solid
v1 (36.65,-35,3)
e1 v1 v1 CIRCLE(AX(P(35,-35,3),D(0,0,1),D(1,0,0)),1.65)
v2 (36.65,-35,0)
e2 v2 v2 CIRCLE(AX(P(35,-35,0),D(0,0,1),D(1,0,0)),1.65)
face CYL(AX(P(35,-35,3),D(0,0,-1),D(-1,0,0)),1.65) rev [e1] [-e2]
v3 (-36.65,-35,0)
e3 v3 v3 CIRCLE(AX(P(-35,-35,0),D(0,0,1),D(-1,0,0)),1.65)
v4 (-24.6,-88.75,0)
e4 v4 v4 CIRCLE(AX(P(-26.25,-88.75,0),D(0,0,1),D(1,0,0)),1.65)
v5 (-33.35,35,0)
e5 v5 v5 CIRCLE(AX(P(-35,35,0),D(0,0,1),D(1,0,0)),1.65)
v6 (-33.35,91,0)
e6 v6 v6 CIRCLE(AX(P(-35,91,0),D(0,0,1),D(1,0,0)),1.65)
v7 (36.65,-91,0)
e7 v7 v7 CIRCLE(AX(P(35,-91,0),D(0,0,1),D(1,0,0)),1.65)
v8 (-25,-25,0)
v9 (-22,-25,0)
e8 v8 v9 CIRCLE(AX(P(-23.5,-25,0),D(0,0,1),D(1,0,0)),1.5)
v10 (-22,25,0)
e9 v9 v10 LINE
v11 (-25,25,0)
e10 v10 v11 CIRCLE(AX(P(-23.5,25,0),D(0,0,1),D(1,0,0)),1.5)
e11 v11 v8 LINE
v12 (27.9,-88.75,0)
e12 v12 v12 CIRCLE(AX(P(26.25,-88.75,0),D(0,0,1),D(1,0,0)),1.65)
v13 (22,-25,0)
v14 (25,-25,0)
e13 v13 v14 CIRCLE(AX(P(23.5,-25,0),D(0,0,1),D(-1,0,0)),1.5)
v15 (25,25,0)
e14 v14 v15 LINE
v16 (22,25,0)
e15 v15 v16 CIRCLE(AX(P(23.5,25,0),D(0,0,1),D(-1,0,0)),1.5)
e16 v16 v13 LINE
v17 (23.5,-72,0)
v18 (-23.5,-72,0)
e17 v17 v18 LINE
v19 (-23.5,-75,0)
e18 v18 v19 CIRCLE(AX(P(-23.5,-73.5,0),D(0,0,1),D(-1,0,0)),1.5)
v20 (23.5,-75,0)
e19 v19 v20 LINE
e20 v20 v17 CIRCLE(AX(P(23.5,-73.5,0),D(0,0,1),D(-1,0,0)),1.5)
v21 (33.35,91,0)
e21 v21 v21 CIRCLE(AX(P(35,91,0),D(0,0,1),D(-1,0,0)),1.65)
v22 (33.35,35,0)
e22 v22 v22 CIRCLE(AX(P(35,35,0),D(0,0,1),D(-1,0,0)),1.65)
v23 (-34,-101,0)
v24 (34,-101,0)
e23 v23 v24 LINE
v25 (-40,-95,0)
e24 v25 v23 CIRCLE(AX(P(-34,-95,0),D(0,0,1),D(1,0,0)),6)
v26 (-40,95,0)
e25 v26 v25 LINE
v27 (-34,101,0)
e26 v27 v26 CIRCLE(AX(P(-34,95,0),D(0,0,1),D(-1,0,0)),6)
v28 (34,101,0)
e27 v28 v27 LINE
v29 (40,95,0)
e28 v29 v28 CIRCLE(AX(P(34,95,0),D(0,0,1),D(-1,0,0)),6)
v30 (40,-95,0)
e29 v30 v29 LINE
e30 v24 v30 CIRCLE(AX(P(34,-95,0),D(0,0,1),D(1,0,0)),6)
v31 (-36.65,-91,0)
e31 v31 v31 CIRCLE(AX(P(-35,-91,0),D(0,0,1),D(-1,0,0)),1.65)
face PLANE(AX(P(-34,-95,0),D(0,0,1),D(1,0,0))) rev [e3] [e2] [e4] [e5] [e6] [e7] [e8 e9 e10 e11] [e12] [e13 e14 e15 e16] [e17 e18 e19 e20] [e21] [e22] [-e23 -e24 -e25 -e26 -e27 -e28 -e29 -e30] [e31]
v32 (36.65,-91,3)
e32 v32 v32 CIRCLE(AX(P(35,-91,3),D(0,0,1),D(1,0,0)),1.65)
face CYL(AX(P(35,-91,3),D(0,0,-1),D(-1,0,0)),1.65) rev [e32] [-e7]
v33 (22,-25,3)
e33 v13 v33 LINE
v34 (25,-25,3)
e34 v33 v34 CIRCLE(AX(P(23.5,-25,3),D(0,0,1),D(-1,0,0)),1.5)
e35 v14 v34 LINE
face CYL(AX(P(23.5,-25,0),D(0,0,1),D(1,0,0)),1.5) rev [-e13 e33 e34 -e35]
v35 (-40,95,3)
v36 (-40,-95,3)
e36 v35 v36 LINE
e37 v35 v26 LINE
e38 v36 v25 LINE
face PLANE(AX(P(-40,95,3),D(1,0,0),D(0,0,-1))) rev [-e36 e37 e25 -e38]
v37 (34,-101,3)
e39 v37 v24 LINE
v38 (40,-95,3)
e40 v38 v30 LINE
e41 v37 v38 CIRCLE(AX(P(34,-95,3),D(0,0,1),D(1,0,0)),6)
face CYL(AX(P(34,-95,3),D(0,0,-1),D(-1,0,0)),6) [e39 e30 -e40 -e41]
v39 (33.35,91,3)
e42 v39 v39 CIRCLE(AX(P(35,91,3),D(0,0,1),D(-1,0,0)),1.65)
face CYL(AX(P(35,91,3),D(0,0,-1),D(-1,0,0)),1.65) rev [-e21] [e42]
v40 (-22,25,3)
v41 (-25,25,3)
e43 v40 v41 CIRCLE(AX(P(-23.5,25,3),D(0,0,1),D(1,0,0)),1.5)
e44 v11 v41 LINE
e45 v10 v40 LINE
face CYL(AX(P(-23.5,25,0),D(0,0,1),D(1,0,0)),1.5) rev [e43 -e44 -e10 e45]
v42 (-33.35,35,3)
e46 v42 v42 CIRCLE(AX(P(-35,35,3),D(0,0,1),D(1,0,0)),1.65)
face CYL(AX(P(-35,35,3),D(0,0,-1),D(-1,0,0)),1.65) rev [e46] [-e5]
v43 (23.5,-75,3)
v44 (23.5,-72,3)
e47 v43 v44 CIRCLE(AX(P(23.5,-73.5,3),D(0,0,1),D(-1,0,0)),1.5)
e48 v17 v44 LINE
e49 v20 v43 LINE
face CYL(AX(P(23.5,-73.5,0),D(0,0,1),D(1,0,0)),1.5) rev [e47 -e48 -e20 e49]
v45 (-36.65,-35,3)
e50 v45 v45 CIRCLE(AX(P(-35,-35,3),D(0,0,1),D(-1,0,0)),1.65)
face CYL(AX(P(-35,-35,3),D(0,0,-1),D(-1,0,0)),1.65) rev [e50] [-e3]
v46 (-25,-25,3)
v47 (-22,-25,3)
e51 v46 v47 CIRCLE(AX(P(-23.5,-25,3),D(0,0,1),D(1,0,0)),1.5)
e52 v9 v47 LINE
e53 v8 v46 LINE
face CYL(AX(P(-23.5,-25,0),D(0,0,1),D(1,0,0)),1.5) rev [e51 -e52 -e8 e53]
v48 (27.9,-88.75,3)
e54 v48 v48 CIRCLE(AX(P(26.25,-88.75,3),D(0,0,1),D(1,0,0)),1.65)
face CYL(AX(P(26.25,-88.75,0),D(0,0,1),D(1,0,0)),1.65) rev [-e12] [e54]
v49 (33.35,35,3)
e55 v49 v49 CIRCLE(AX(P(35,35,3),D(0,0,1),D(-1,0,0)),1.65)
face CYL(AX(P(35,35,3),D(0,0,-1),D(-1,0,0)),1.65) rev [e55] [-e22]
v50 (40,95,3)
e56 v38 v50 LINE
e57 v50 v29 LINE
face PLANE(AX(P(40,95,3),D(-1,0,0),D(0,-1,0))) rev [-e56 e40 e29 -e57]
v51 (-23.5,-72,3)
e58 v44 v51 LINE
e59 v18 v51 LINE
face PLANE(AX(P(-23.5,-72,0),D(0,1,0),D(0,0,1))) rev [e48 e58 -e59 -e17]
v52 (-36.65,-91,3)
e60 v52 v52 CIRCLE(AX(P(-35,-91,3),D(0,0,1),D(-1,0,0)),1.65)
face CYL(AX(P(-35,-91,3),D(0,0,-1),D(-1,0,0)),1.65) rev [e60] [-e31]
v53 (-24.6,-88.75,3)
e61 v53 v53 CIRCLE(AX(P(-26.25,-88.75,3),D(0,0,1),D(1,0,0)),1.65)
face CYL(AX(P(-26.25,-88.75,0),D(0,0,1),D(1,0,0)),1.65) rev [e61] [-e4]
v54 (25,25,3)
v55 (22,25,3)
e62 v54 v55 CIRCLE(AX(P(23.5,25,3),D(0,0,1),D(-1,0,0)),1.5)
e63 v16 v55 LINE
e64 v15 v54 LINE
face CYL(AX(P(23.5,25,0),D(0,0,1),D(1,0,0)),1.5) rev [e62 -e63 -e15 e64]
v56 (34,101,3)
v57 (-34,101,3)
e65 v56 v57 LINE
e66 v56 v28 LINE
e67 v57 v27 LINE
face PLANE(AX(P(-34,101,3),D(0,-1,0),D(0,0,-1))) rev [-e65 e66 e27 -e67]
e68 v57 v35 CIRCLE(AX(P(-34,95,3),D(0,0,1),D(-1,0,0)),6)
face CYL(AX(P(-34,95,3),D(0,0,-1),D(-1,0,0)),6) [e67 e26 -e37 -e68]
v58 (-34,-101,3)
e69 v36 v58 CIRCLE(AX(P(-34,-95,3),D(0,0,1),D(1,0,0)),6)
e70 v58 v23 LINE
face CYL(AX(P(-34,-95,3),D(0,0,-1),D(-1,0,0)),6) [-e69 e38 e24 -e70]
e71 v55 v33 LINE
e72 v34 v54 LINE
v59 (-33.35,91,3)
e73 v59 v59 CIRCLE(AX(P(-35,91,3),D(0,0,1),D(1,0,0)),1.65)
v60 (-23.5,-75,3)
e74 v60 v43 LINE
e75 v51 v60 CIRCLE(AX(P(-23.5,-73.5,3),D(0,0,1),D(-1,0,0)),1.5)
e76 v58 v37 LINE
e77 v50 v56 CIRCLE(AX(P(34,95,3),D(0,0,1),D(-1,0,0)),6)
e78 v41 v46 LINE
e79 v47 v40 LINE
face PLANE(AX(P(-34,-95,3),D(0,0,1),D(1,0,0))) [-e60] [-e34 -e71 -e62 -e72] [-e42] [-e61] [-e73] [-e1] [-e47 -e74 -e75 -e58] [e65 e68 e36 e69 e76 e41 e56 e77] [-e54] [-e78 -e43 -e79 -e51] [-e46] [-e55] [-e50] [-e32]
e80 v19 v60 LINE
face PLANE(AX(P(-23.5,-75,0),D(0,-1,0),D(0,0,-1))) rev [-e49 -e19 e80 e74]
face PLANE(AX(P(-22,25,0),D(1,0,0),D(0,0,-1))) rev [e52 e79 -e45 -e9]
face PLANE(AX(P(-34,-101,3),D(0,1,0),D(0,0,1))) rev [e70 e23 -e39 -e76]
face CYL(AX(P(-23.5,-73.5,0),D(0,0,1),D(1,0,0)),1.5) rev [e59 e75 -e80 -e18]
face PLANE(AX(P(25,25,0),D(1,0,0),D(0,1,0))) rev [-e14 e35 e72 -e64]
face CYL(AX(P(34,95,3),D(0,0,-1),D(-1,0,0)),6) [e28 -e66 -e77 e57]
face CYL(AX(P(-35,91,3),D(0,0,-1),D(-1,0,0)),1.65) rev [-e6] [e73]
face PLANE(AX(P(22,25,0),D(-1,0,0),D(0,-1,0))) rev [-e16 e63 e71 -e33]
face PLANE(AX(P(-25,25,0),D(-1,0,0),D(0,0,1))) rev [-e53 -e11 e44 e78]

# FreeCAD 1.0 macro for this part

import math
import FreeCAD as App
import Part
import Sketcher

V = App.Vector

doc = App.newDocument("Part")
body = doc.addObject("PartDesign::Body", "Body")

# Sketch on XY plane
sketch1 = body.newObject("Sketcher::SketchObject", "Sketch")
sketch1.AttachmentSupport = (doc.getObject("XY_Plane"), [""])
sketch1.MapMode = "FlatFace"
sketch1.addGeometry([
    Part.LineSegment(V(34, 101, 0), V(-34, 101, 0)),  # 0
    Part.ArcOfCircle(Part.Circle(V(-34, 95, 0), V(0, 0, 1), 6), math.radians(90), math.radians(180)),  # 1
    Part.LineSegment(V(-40, 95, 0), V(-40, -95, 0)),  # 2
    Part.ArcOfCircle(Part.Circle(V(-34, -95, 0), V(0, 0, 1), 6), math.radians(180), math.radians(270)),  # 3
    Part.LineSegment(V(-34, -101, 0), V(34, -101, 0)),  # 4
    Part.ArcOfCircle(Part.Circle(V(34, -95, 0), V(0, 0, 1), 6), math.radians(-90), math.radians(0)),  # 5
    Part.LineSegment(V(40, -95, 0), V(40, 95, 0)),  # 6
    Part.ArcOfCircle(Part.Circle(V(34, 95, 0), V(0, 0, 1), 6), math.radians(0), math.radians(90)),  # 7
    Part.Circle(V(35, -91, 0), V(0, 0, 1), 1.6),  # 8
    Part.Circle(V(35, -35, 0), V(0, 0, 1), 1.6),  # 9
    Part.Circle(V(-35, -91, 0), V(0, 0, 1), 1.6),  # 10
    Part.Circle(V(-35, -35, 0), V(0, 0, 1), 1.6),  # 11
    Part.Circle(V(35, 35, 0), V(0, 0, 1), 1.6),  # 12
    Part.Circle(V(35, 91, 0), V(0, 0, 1), 1.6),  # 13
    Part.Circle(V(-35, 35, 0), V(0, 0, 1), 1.6),  # 14
    Part.Circle(V(-35, 91, 0), V(0, 0, 1), 1.6),  # 15
], False)
sketch1.addConstraint([
    Sketcher.Constraint("Tangent", 0, 2, 1, 1),
    Sketcher.Constraint("Tangent", 1, 2, 2, 1),
    Sketcher.Constraint("Tangent", 2, 2, 3, 1),
    Sketcher.Constraint("Tangent", 3, 2, 4, 1),
    Sketcher.Constraint("Tangent", 4, 2, 5, 1),
    Sketcher.Constraint("Tangent", 5, 2, 6, 1),
    Sketcher.Constraint("Tangent", 6, 2, 7, 1),
    Sketcher.Constraint("Tangent", 7, 2, 0, 1),
    Sketcher.Constraint("Horizontal", 0),
    Sketcher.Constraint("Vertical", 2),
    Sketcher.Constraint("Horizontal", 4),
    Sketcher.Constraint("Vertical", 6),
    Sketcher.Constraint("Equal", 1, 3),
    Sketcher.Constraint("Equal", 3, 5),
    Sketcher.Constraint("Equal", 5, 7),
    Sketcher.Constraint("Equal", 8, 9),
    Sketcher.Constraint("Equal", 9, 10),
    Sketcher.Constraint("Equal", 10, 11),
    Sketcher.Constraint("Equal", 11, 12),
    Sketcher.Constraint("Equal", 12, 13),
    Sketcher.Constraint("Equal", 13, 14),
    Sketcher.Constraint("Equal", 14, 15),
    Sketcher.Constraint("Symmetric", 1, 3, 5, 3, -1, 1),
    Sketcher.Constraint("Symmetric", 11, 3, 12, 3, -1, 1),
    Sketcher.Constraint("Symmetric", 10, 3, 13, 3, -1, 1),
    Sketcher.Constraint("Symmetric", 9, 3, 14, 3, -1, 1),
    Sketcher.Constraint("Symmetric", 8, 3, 15, 3, -1, 1),
    Sketcher.Constraint("Symmetric", 8, 3, 10, 3, -2),
    Sketcher.Constraint("Symmetric", 9, 3, 11, 3, -2),
    Sketcher.Constraint("Vertical", 8, 3, 9, 3),
    Sketcher.Constraint("Radius", 1, 6.0),
    Sketcher.Constraint("Diameter", 8, 3.3),
    Sketcher.Constraint("DistanceX", 0, 2, 0, 1, 68.0),
    Sketcher.Constraint("DistanceY", 2, 2, 2, 1, 190.0),
    Sketcher.Constraint("DistanceX", -1, 1, 8, 3, 35.0),
    Sketcher.Constraint("DistanceY", 8, 3, -1, 1, 91.0),
    Sketcher.Constraint("DistanceY", 9, 3, -1, 1, 35.0),
])
pad1 = body.newObject("PartDesign::Pad", "Pad")
pad1.Profile = sketch1
pad1.Length = 3

# Sketch on XY plane
sketch2 = body.newObject("Sketcher::SketchObject", "Sketch001")
sketch2.AttachmentSupport = (doc.getObject("XY_Plane"), [""])
sketch2.MapMode = "FlatFace"
sketch2.AttachmentOffset = App.Placement(V(0, 0, 3), App.Rotation())
sketch2.addGeometry([
    Part.Circle(V(-26.2, -88.8, 0), V(0, 0, 1), 1.6),  # 0
    Part.Circle(V(26.2, -88.8, 0), V(0, 0, 1), 1.6),  # 1
    Part.LineSegment(V(-22, -25, 0), V(-22, 25, 0)),  # 2
    Part.ArcOfCircle(Part.Circle(V(-23.5, 25, 0), V(0, 0, 1), 1.5), math.radians(0), math.radians(180)),  # 3
    Part.LineSegment(V(-25, 25, 0), V(-25, -25, 0)),  # 4
    Part.ArcOfCircle(Part.Circle(V(-23.5, -25, 0), V(0, 0, 1), 1.5), math.radians(180), math.radians(360)),  # 5
    Part.LineSegment(V(22, 25, 0), V(22, -25, 0)),  # 6
    Part.ArcOfCircle(Part.Circle(V(23.5, -25, 0), V(0, 0, 1), 1.5), math.radians(180), math.radians(360)),  # 7
    Part.LineSegment(V(25, -25, 0), V(25, 25, 0)),  # 8
    Part.ArcOfCircle(Part.Circle(V(23.5, 25, 0), V(0, 0, 1), 1.5), math.radians(0), math.radians(180)),  # 9
    Part.LineSegment(V(-23.5, -75, 0), V(23.5, -75, 0)),  # 10
    Part.ArcOfCircle(Part.Circle(V(23.5, -73.5, 0), V(0, 0, 1), 1.5), math.radians(-90), math.radians(90)),  # 11
    Part.LineSegment(V(23.5, -72, 0), V(-23.5, -72, 0)),  # 12
    Part.ArcOfCircle(Part.Circle(V(-23.5, -73.5, 0), V(0, 0, 1), 1.5), math.radians(90), math.radians(270)),  # 13
], False)
sketch2.addConstraint([
    Sketcher.Constraint("Tangent", 2, 2, 3, 1),
    Sketcher.Constraint("Tangent", 3, 2, 4, 1),
    Sketcher.Constraint("Tangent", 4, 2, 5, 1),
    Sketcher.Constraint("Tangent", 5, 2, 2, 1),
    Sketcher.Constraint("Tangent", 6, 2, 7, 1),
    Sketcher.Constraint("Tangent", 7, 2, 8, 1),
    Sketcher.Constraint("Tangent", 8, 2, 9, 1),
    Sketcher.Constraint("Tangent", 9, 2, 6, 1),
    Sketcher.Constraint("Tangent", 10, 2, 11, 1),
    Sketcher.Constraint("Tangent", 11, 2, 12, 1),
    Sketcher.Constraint("Tangent", 12, 2, 13, 1),
    Sketcher.Constraint("Tangent", 13, 2, 10, 1),
    Sketcher.Constraint("Vertical", 2),
    Sketcher.Constraint("Vertical", 4),
    Sketcher.Constraint("Vertical", 6),
    Sketcher.Constraint("Vertical", 8),
    Sketcher.Constraint("Horizontal", 10),
    Sketcher.Constraint("Horizontal", 12),
    Sketcher.Constraint("Equal", 0, 1),
    Sketcher.Constraint("Equal", 5, 7),
    Sketcher.Constraint("Equal", 9, 11),
    Sketcher.Constraint("Symmetric", 3, 3, 7, 3, -1, 1),
    Sketcher.Constraint("Symmetric", 0, 3, 1, 3, -2),
    Sketcher.Constraint("Horizontal", 5, 3, 7, 3),
    Sketcher.Constraint("Horizontal", 3, 3, 9, 3),
    Sketcher.Constraint("Vertical", 9, 3, 11, 3),
    Sketcher.Constraint("Vertical", 5, 3, 13, 3),
    Sketcher.Constraint("Diameter", 0, 3.3),
    Sketcher.Constraint("Radius", 3, 1.5),
    Sketcher.Constraint("DistanceX", 10, 1, 10, 2, 47.0),
    Sketcher.Constraint("DistanceY", 2, 1, 2, 2, 50.0),
    Sketcher.Constraint("DistanceY", 10, 2, -1, 1, 75.0),
    Sketcher.Constraint("DistanceX", 0, 3, 1, 3, 52.5),
    Sketcher.Constraint("DistanceY", 0, 3, -1, 1, 88.75),
])
pocket1 = body.newObject("PartDesign::Pocket", "Pocket")
pocket1.Profile = sketch2
pocket1.Type = "ThroughAll"

doc.recompute()
